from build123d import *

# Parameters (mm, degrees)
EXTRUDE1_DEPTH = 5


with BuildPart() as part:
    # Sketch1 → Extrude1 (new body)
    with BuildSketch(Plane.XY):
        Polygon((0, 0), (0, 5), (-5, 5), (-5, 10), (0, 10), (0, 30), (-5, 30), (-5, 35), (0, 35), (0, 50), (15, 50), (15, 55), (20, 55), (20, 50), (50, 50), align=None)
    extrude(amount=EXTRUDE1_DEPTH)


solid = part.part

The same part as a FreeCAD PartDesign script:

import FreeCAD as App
import Part
import Sketcher

V = App.Vector
Q = App.Units.Quantity


def add_polygon(sketch, points):
    """Adds a closed chain of lines whose ends are joined by coincident constraints."""
    first, n = sketch.GeometryCount, len(points)
    for a, b in zip(points, points[1:] + points[:1]):
        sketch.addGeometry(Part.LineSegment(App.Vector(*a, 0), App.Vector(*b, 0)), False)
    for i in range(n):
        sketch.addConstraint(Sketcher.Constraint("Coincident", first + i, 2, first + (i + 1) % n, 1))

doc = App.newDocument("Part")
body = doc.addObject("PartDesign::Body", "Body")

# Sketch on XY plane
sketch1 = body.newObject("Sketcher::SketchObject", "Sketch")
sketch1.AttachmentSupport = (doc.getObject("XY_Plane"), [""])
sketch1.MapMode = "FlatFace"
add_polygon(sketch1, [(0, 5), (0, 0), (50, 50), (20, 50), (20, 55), (15, 55), (15, 50), (0, 50), (0, 35), (-5, 35), (-5, 30), (0, 30), (0, 10), (-5, 10), (-5, 5)])  # lines 0-14
sketch1.addConstraint([
    Sketcher.Constraint("Vertical", 0),
    Sketcher.Constraint("Horizontal", 2),
    Sketcher.Constraint("Vertical", 3),
    Sketcher.Constraint("Horizontal", 4),
    Sketcher.Constraint("Vertical", 5),
    Sketcher.Constraint("Horizontal", 6),
    Sketcher.Constraint("Vertical", 7),
    Sketcher.Constraint("Horizontal", 8),
    Sketcher.Constraint("Vertical", 9),
    Sketcher.Constraint("Horizontal", 10),
    Sketcher.Constraint("Vertical", 11),
    Sketcher.Constraint("Horizontal", 12),
    Sketcher.Constraint("Vertical", 13),
    Sketcher.Constraint("Horizontal", 14),
    Sketcher.Constraint("Coincident", 0, 2, -1, 1),
    Sketcher.Constraint("PointOnObject", 6, 2, -2),
    Sketcher.Constraint("PointOnObject", 10, 2, -2),
    Sketcher.Constraint("Horizontal", 2, 2, 5, 2),
    Sketcher.Constraint("Vertical", 9, 2, 12, 2),
    Sketcher.Constraint("Equal", 4, 8),
    Sketcher.Constraint("Equal", 14, 0),
    Sketcher.Constraint("Equal", 0, 3),
    Sketcher.Constraint("Equal", 6, 7),
    Sketcher.Constraint("Equal", 5, 9),
    Sketcher.Constraint("Equal", 9, 13),
    Sketcher.Constraint("DistanceX", 2, 2, 2, 1, Q("30 mm")),
    Sketcher.Constraint("DistanceX", 4, 2, 4, 1, Q("5 mm")),
    Sketcher.Constraint("DistanceX", 6, 2, 6, 1, Q("15 mm")),
    Sketcher.Constraint("DistanceY", 11, 2, 11, 1, Q("20 mm")),
])
pad1 = body.newObject("PartDesign::Pad", "Pad")
pad1.Profile = sketch1
pad1.Length = 5

doc.recompute()
